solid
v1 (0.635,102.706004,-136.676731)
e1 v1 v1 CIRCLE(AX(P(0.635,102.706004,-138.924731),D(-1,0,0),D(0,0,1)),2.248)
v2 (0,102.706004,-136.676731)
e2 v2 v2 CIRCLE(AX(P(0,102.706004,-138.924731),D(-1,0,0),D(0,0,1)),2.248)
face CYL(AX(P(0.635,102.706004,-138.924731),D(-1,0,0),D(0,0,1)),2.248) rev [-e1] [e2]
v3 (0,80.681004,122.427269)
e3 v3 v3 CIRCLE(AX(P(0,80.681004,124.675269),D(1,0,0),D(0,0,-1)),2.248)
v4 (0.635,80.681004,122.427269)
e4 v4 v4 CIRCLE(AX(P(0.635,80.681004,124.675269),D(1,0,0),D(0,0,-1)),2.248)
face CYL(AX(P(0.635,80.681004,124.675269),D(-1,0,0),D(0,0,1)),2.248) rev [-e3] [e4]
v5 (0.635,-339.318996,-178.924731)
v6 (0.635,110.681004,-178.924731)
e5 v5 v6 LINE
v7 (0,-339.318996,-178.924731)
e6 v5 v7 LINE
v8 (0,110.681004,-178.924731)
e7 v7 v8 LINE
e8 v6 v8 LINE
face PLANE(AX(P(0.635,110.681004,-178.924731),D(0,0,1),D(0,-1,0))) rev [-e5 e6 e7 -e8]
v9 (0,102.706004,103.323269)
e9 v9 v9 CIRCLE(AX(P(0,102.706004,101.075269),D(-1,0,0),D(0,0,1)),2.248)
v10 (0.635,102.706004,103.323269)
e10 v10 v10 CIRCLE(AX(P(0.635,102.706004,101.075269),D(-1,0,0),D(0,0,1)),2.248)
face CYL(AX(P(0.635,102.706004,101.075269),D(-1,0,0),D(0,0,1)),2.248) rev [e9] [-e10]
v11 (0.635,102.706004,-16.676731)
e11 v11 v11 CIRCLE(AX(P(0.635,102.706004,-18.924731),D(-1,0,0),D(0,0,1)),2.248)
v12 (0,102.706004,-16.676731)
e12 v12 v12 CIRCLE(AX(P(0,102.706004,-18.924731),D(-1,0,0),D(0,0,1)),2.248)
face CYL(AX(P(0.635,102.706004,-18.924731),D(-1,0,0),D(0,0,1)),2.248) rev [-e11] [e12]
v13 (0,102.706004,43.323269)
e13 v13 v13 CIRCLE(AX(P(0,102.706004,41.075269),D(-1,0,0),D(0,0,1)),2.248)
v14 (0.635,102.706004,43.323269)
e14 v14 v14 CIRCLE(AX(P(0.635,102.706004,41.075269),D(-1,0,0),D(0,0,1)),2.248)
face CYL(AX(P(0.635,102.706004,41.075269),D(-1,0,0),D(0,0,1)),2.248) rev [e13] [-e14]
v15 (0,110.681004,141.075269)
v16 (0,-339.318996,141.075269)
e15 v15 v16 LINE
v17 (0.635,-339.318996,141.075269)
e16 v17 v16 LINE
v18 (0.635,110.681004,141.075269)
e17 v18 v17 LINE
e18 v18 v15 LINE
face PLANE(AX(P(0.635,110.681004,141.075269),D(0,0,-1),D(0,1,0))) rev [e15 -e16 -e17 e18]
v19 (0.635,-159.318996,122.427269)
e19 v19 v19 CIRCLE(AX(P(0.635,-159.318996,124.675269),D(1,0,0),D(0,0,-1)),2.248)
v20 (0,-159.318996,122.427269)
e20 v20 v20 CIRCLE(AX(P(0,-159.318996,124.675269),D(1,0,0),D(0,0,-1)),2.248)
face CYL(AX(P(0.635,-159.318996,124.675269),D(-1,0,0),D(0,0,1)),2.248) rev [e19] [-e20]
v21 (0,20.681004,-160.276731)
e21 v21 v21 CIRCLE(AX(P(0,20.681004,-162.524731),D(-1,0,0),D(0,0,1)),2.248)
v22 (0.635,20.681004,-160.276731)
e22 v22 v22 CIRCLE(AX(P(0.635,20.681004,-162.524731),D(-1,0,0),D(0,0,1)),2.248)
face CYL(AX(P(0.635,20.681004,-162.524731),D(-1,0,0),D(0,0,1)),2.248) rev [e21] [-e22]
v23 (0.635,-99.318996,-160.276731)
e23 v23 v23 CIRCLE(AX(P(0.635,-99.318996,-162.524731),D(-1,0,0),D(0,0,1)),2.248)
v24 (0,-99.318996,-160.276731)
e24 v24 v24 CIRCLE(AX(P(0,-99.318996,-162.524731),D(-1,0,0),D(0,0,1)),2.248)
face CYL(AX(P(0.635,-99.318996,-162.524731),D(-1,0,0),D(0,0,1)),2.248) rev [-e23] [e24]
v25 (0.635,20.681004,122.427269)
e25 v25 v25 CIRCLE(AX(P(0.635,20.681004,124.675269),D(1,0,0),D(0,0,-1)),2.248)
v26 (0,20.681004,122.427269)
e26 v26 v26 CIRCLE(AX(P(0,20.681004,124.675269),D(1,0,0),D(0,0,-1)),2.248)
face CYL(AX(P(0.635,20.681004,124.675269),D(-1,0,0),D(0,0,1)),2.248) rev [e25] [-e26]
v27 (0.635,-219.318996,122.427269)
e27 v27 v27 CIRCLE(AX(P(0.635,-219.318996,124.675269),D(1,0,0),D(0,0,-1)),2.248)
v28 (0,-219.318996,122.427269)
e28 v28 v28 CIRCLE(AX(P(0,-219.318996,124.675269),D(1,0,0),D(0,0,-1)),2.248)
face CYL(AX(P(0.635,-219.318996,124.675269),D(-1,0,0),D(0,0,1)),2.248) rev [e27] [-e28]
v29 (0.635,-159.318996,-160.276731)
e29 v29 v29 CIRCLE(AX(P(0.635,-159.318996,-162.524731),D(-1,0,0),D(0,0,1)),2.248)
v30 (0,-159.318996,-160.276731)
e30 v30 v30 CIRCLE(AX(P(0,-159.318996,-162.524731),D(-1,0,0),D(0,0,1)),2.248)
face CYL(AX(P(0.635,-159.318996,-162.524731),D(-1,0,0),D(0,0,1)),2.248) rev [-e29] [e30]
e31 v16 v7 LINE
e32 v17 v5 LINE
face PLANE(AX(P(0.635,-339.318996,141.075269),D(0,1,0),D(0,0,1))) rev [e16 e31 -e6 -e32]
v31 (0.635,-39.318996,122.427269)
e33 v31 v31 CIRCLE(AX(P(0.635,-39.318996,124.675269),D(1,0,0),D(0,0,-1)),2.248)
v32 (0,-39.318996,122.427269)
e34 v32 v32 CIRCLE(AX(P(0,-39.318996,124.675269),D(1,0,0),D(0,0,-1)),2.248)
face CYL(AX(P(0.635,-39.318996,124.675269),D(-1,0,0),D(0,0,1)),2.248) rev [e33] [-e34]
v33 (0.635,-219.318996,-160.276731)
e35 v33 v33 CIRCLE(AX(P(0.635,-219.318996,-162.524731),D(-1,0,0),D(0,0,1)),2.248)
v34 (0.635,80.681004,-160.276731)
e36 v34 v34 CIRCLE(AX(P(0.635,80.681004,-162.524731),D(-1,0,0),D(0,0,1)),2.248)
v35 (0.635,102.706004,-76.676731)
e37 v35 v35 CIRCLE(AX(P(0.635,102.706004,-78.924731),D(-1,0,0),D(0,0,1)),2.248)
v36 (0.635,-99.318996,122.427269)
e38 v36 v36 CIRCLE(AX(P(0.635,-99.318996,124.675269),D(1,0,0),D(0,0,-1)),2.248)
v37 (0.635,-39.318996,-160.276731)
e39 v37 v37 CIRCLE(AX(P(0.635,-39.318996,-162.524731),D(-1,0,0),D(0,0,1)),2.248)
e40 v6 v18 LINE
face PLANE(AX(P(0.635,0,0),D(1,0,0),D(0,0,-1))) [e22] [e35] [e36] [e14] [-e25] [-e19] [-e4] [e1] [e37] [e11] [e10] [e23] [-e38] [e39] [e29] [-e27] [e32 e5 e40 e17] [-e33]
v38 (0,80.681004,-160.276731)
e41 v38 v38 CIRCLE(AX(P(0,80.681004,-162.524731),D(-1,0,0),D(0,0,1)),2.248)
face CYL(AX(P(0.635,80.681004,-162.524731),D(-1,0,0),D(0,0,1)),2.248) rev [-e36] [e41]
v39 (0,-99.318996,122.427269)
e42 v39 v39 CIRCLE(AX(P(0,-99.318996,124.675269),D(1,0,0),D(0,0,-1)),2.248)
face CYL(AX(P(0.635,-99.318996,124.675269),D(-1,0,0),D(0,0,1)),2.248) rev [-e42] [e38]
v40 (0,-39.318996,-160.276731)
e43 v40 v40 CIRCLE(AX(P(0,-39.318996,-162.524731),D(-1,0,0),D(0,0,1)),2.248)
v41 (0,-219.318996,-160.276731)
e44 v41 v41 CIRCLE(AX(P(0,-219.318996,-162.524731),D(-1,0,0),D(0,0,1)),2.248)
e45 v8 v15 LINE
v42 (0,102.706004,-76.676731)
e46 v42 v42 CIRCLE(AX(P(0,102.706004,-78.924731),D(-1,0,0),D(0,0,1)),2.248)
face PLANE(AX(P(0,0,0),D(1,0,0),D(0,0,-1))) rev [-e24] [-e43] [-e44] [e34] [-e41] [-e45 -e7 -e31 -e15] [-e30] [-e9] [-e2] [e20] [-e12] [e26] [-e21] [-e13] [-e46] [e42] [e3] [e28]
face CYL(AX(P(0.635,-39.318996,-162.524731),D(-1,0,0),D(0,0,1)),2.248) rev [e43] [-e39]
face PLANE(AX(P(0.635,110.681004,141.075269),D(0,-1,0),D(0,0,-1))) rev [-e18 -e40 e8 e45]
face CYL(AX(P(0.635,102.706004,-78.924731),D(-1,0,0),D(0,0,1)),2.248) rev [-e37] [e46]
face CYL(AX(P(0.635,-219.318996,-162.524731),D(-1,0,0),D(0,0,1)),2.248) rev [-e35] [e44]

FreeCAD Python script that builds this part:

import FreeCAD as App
import Part
import Sketcher

V = App.Vector

doc = App.newDocument("Part")
body = doc.addObject("PartDesign::Body", "Body")

# Sketch on YZ plane
sketch1 = body.newObject("Sketcher::SketchObject", "Sketch")
sketch1.AttachmentSupport = (doc.getObject("YZ_Plane"), [""])
sketch1.MapMode = "FlatFace"
sketch1.addGeometry([
    Part.LineSegment(V(111, 141, 0), V(-339, 141, 0)),
    Part.LineSegment(V(-339, 141, 0), V(-339, -179, 0)),
    Part.LineSegment(V(-339, -179, 0), V(111, -179, 0)),
    Part.LineSegment(V(111, -179, 0), V(111, 141, 0)),
], False)
sketch1.addConstraint([
    Sketcher.Constraint("Coincident", 0, 2, 1, 1),
    Sketcher.Constraint("Coincident", 1, 2, 2, 1),
    Sketcher.Constraint("Coincident", 2, 2, 3, 1),
    Sketcher.Constraint("Coincident", 3, 2, 0, 1),
    Sketcher.Constraint("Horizontal", 0),
    Sketcher.Constraint("Vertical", 1),
    Sketcher.Constraint("Horizontal", 2),
    Sketcher.Constraint("Vertical", 3),
    Sketcher.Constraint("DistanceX", 0, 2, 0, 1, 450.0),
    Sketcher.Constraint("DistanceY", 1, 2, 1, 1, 320.0),
    Sketcher.Constraint("DistanceY", -1, 1, 0, 2, 141.075269),
    Sketcher.Constraint("DistanceX", 0, 2, -1, 1, 339.318996),
])
pad1 = body.newObject("PartDesign::Pad", "Pad")
pad1.Profile = sketch1
pad1.Length = 0.635

# Sketch on YZ plane
sketch2 = body.newObject("Sketcher::SketchObject", "Sketch001")
sketch2.AttachmentSupport = (doc.getObject("YZ_Plane"), [""])
sketch2.MapMode = "FlatFace"
sketch2.addGeometry(Part.Circle(V(80.7, 124.7, 0), V(0, 0, 1), 2.2), False)
sketch2.addConstraint([
    Sketcher.Constraint("Diameter", 0, 4.496),
    Sketcher.Constraint("DistanceY", -1, 1, 0, 3, 124.675269),
    Sketcher.Constraint("DistanceX", -1, 1, 0, 3, 80.681004),
])
pocket1 = body.newObject("PartDesign::Pocket", "Pocket")
pocket1.Profile = sketch2
pocket1.Type = "ThroughAll"
pocket1.Reversed = True
doc.recompute()

linearpattern = body.newObject("PartDesign::LinearPattern", "LinearPattern")
linearpattern.Originals = [pocket1]
linearpattern.Direction = (doc.getObject("Y_Axis"), [""])
linearpattern.Mode = "offset"
linearpattern.Offset = 60
linearpattern.Occurrences = 6
linearpattern.Reversed = True
body.Tip = linearpattern
doc.recompute()

datumplane = body.newObject("PartDesign::Plane", "DatumPlane")
datumplane.AttachmentSupport = (doc.getObject("XY_Plane"), [""])
datumplane.MapMode = "FlatFace"
datumplane.AttachmentOffset = App.Placement(V(0, 0, -18.924731), App.Rotation())
mirrored = body.newObject("PartDesign::Mirrored", "Mirrored")
mirrored.Originals = [pocket1]
mirrored.MirrorPlane = (datumplane, [""])
body.Tip = mirrored

# Sketch on YZ plane
sketch3 = body.newObject("Sketcher::SketchObject", "Sketch002")
sketch3.AttachmentSupport = (doc.getObject("YZ_Plane"), [""])
sketch3.MapMode = "FlatFace"
sketch3.addGeometry(Part.Circle(V(20.7, -162.5, 0), V(0, 0, 1), 2.2), False)
sketch3.addConstraint([
    Sketcher.Constraint("Diameter", 0, 4.496),
    Sketcher.Constraint("DistanceY", 0, 3, -1, 1, 162.524731),
    Sketcher.Constraint("DistanceX", -1, 1, 0, 3, 20.681004),
])
pocket2 = body.newObject("PartDesign::Pocket", "Pocket001")
pocket2.Profile = sketch3
pocket2.Type = "ThroughAll"
pocket2.Reversed = True

# Sketch on YZ plane
sketch4 = body.newObject("Sketcher::SketchObject", "Sketch003")
sketch4.AttachmentSupport = (doc.getObject("YZ_Plane"), [""])
sketch4.MapMode = "FlatFace"
sketch4.addGeometry(Part.Circle(V(-39.3, -162.5, 0), V(0, 0, 1), 2.2), False)
sketch4.addConstraint([
    Sketcher.Constraint("Diameter", 0, 4.496),
    Sketcher.Constraint("DistanceY", 0, 3, -1, 1, 162.524731),
    Sketcher.Constraint("DistanceX", 0, 3, -1, 1, 39.318996),
])
pocket3 = body.newObject("PartDesign::Pocket", "Pocket002")
pocket3.Profile = sketch4
pocket3.Type = "ThroughAll"
pocket3.Reversed = True

# Sketch on YZ plane
sketch5 = body.newObject("Sketcher::SketchObject", "Sketch004")
sketch5.AttachmentSupport = (doc.getObject("YZ_Plane"), [""])
sketch5.MapMode = "FlatFace"
sketch5.addGeometry(Part.Circle(V(-99.3, -162.5, 0), V(0, 0, 1), 2.2), False)
sketch5.addConstraint([
    Sketcher.Constraint("Diameter", 0, 4.496),
    Sketcher.Constraint("DistanceY", 0, 3, -1, 1, 162.524731),
    Sketcher.Constraint("DistanceX", 0, 3, -1, 1, 99.318996),
])
pocket4 = body.newObject("PartDesign::Pocket", "Pocket003")
pocket4.Profile = sketch5
pocket4.Type = "ThroughAll"
pocket4.Reversed = True

# Sketch on YZ plane
sketch6 = body.newObject("Sketcher::SketchObject", "Sketch005")
sketch6.AttachmentSupport = (doc.getObject("YZ_Plane"), [""])
sketch6.MapMode = "FlatFace"
sketch6.addGeometry(Part.Circle(V(-159.3, -162.5, 0), V(0, 0, 1), 2.2), False)
sketch6.addConstraint([
    Sketcher.Constraint("Diameter", 0, 4.496),
    Sketcher.Constraint("DistanceY", 0, 3, -1, 1, 162.524731),
    Sketcher.Constraint("DistanceX", 0, 3, -1, 1, 159.318996),
])
pocket5 = body.newObject("PartDesign::Pocket", "Pocket004")
pocket5.Profile = sketch6
pocket5.Type = "ThroughAll"
pocket5.Reversed = True

# Sketch on YZ plane
sketch7 = body.newObject("Sketcher::SketchObject", "Sketch006")
sketch7.AttachmentSupport = (doc.getObject("YZ_Plane"), [""])
sketch7.MapMode = "FlatFace"
sketch7.addGeometry(Part.Circle(V(-219.3, -162.5, 0), V(0, 0, 1), 2.2), False)
sketch7.addConstraint([
    Sketcher.Constraint("Diameter", 0, 4.496),
    Sketcher.Constraint("DistanceY", 0, 3, -1, 1, 162.524731),
    Sketcher.Constraint("DistanceX", 0, 3, -1, 1, 219.318996),
])
pocket6 = body.newObject("PartDesign::Pocket", "Pocket005")
pocket6.Profile = sketch7
pocket6.Type = "ThroughAll"
pocket6.Reversed = True

# Sketch on YZ plane
sketch8 = body.newObject("Sketcher::SketchObject", "Sketch007")
sketch8.AttachmentSupport = (doc.getObject("YZ_Plane"), [""])
sketch8.MapMode = "FlatFace"
sketch8.addGeometry(Part.Circle(V(102.7, -138.9, 0), V(0, 0, 1), 2.2), False)
sketch8.addConstraint([
    Sketcher.Constraint("Diameter", 0, 4.496),
    Sketcher.Constraint("DistanceY", 0, 3, -1, 1, 138.924731),
    Sketcher.Constraint("DistanceX", -1, 1, 0, 3, 102.706004),
])
pocket7 = body.newObject("PartDesign::Pocket", "Pocket006")
pocket7.Profile = sketch8
pocket7.Type = "ThroughAll"
pocket7.Reversed = True
doc.recompute()

linearpattern2 = body.newObject("PartDesign::LinearPattern", "LinearPattern001")
linearpattern2.Originals = [pocket7]
linearpattern2.Direction = (doc.getObject("Z_Axis"), [""])
linearpattern2.Mode = "offset"
linearpattern2.Offset = 60
linearpattern2.Occurrences = 5
body.Tip = linearpattern2

doc.recompute()
